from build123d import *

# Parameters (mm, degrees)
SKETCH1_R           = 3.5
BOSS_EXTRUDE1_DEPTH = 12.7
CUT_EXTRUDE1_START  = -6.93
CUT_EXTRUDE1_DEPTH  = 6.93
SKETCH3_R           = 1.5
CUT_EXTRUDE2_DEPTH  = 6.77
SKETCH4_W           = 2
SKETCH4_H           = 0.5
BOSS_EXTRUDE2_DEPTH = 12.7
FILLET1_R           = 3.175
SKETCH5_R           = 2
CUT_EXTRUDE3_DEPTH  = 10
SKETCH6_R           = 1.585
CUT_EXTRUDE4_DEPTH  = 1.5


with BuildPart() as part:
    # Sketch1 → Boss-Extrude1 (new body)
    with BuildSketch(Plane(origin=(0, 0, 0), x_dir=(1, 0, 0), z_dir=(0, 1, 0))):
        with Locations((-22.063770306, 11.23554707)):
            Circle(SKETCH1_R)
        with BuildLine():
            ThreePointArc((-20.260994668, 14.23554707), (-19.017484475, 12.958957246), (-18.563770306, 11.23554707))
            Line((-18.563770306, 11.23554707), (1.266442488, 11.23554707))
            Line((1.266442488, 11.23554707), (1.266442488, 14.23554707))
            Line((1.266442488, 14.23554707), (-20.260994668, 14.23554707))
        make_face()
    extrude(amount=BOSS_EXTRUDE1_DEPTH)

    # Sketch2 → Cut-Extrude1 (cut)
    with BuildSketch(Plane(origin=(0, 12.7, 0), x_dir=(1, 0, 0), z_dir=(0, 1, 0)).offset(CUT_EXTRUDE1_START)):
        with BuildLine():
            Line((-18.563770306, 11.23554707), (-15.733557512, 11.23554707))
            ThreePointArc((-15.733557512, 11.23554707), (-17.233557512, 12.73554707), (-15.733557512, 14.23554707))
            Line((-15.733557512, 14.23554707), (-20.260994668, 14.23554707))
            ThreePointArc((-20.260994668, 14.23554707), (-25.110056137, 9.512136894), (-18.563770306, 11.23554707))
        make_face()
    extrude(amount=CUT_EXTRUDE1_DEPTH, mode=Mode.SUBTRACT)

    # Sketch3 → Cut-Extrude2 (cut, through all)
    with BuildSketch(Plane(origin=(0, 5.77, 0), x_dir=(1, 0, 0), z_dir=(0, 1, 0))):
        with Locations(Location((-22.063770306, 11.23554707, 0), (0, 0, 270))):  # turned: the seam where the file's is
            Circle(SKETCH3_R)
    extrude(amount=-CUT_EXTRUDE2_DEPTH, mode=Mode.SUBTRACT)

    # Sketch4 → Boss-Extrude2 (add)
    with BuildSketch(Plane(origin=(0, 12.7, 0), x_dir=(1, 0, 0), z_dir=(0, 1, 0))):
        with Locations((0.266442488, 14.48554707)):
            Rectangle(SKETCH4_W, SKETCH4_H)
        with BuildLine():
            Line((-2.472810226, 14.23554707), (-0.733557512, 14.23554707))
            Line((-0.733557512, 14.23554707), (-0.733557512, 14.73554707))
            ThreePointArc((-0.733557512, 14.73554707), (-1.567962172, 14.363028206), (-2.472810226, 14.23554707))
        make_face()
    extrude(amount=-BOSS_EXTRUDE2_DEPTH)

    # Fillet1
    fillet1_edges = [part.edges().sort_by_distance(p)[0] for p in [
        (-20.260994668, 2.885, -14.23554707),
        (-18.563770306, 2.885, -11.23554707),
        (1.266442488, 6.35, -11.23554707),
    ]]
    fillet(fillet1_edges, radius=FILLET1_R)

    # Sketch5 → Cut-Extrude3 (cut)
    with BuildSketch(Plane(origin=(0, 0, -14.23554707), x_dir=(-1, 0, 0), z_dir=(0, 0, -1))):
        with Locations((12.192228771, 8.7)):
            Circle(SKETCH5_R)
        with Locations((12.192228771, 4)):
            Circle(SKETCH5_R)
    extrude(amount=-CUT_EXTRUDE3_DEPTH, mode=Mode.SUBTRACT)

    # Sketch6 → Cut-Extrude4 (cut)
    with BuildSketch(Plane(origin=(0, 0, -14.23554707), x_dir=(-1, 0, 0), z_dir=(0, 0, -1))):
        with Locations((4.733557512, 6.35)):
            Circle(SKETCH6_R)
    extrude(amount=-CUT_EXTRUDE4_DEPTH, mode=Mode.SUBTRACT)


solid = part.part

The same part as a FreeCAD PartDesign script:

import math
import FreeCAD as App
import Part
import Sketcher


def edges_at(feature, points):
    """Names of the edges that pass closest to the given points."""
    edges = feature.Shape.Edges
    near = lambda p: min(range(len(edges)), key=lambda i: edges[i].distToShape(Part.Vertex(*p))[0])
    return sorted({f"Edge{near(p) + 1}" for p in points})

doc = App.newDocument("Part")
body = doc.addObject("PartDesign::Body", "Body")

# Sketch on XZ plane
sketch1 = body.newObject("Sketcher::SketchObject", "Sketch")
sketch1.AttachmentSupport = (doc.getObject("XZ_Plane"), [""])
sketch1.MapMode = "FlatFace"
sketch1.addGeometry([
    Part.ArcOfCircle(Part.Circle(App.Vector(-22.06377, -11.235547, 0), App.Vector(0, 0, 1), 3.5), math.radians(0), math.radians(301.002719)),
    Part.LineSegment(App.Vector(-18.56377, -11.235547, 0), App.Vector(1.266442, -11.235547, 0)),
    Part.LineSegment(App.Vector(1.266442, -11.235547, 0), App.Vector(1.266442, -14.235547, 0)),
    Part.LineSegment(App.Vector(1.266442, -14.235547, 0), App.Vector(-20.260995, -14.235547, 0)),
], False)
sketch1.addConstraint([
    Sketcher.Constraint("Coincident", 0, 1, 1, 1),
    Sketcher.Constraint("Coincident", 1, 2, 2, 1),
    Sketcher.Constraint("Coincident", 2, 2, 3, 1),
    Sketcher.Constraint("Coincident", 3, 2, 0, 2),
    Sketcher.Constraint("Horizontal", 1),
    Sketcher.Constraint("Vertical", 2),
    Sketcher.Constraint("Horizontal", 3),
    Sketcher.Constraint("Radius", 0, 3.5),
    Sketcher.Constraint("DistanceY", 2, 2, 2, 1, 3.0),
    Sketcher.Constraint("DistanceY", 2, 2, 0, 3, 3.0),
    Sketcher.Constraint("DistanceX", 1, 1, 1, 2, 19.830213),
    Sketcher.Constraint("DistanceX", 0, 3, -1, 1, 22.06377),
    Sketcher.Constraint("DistanceY", 0, 3, -1, 1, 11.235547),
])
pad1 = body.newObject("PartDesign::Pad", "Pad")
pad1.Profile = sketch1
pad1.Length = 12.7
pad1.Reversed = True

# Sketch on XZ plane
sketch2 = body.newObject("Sketcher::SketchObject", "Sketch001")
sketch2.AttachmentSupport = (doc.getObject("XZ_Plane"), [""])
sketch2.MapMode = "FlatFace"
sketch2.AttachmentOffset = App.Placement(App.Vector(0, 0, -5.77), App.Rotation())
sketch2.addGeometry([
    Part.LineSegment(App.Vector(-18.56377, -11.235547, 0), App.Vector(-15.733558, -11.235547, 0)),
    Part.ArcOfCircle(Part.Circle(App.Vector(-15.733558, -12.735547, 0), App.Vector(0, 0, 1), 1.5), math.radians(90), math.radians(270)),
    Part.LineSegment(App.Vector(-15.733558, -14.235547, 0), App.Vector(-20.260995, -14.235547, 0)),
    Part.ArcOfCircle(Part.Circle(App.Vector(-22.06377, -11.235547, 0), App.Vector(0, 0, 1), 3.5), math.radians(0), math.radians(301.002719)),
], False)
sketch2.addConstraint([
    Sketcher.Constraint("Tangent", 0, 2, 1, 1),
    Sketcher.Constraint("Tangent", 1, 2, 2, 1),
    Sketcher.Constraint("Coincident", 2, 2, 3, 2),
    Sketcher.Constraint("Coincident", 3, 1, 0, 1),
    Sketcher.Constraint("Horizontal", 0),
    Sketcher.Constraint("Horizontal", 2),
    Sketcher.Constraint("Horizontal", 3, 3, 0, 2),
    Sketcher.Constraint("Radius", 1, 1.5),
    Sketcher.Constraint("Radius", 3, 3.5),
    Sketcher.Constraint("DistanceX", 0, 1, 0, 2, 2.830213),
    Sketcher.Constraint("DistanceX", 3, 3, -1, 1, 22.06377),
    Sketcher.Constraint("DistanceY", 1, 3, -1, 1, 12.735547),
])
pocket1 = body.newObject("PartDesign::Pocket", "Pocket")
pocket1.Profile = sketch2
pocket1.Length = 6.93

# Sketch on XZ plane
sketch3 = body.newObject("Sketcher::SketchObject", "Sketch002")
sketch3.AttachmentSupport = (doc.getObject("XZ_Plane"), [""])
sketch3.MapMode = "FlatFace"
sketch3.AttachmentOffset = App.Placement(App.Vector(0, 0, -5.77), App.Rotation())
sketch3.addGeometry(Part.Circle(App.Vector(-22.06377, -11.235547, 0), App.Vector(0, 0, 1), 1.5), False)
sketch3.addConstraint([
    Sketcher.Constraint("Diameter", 0, 3.0),
    Sketcher.Constraint("DistanceX", 0, 3, -1, 1, 22.06377),
    Sketcher.Constraint("DistanceY", 0, 3, -1, 1, 11.235547),
])
pocket2 = body.newObject("PartDesign::Pocket", "Pocket001")
pocket2.Profile = sketch3
pocket2.Type = "ThroughAll"
pocket2.Reversed = True

# Sketch on XZ plane
sketch4 = body.newObject("Sketcher::SketchObject", "Sketch003")
sketch4.AttachmentSupport = (doc.getObject("XZ_Plane"), [""])
sketch4.MapMode = "FlatFace"
sketch4.AttachmentOffset = App.Placement(App.Vector(0, 0, -12.7), App.Rotation())
sketch4.addGeometry([
    Part.LineSegment(App.Vector(1.266442, -14.235547, 0), App.Vector(1.266442, -14.735547, 0)),
    Part.LineSegment(App.Vector(1.266442, -14.735547, 0), App.Vector(-0.733558, -14.735547, 0)),
    Part.ArcOfCircle(Part.Circle(App.Vector(-2.47281, -17.510547, 0), App.Vector(0, 0, 1), 3.275), math.radians(57.922253), math.radians(90)),
    Part.LineSegment(App.Vector(-2.47281, -14.235547, 0), App.Vector(1.266442, -14.235547, 0)),
], False)
sketch4.addConstraint([
    Sketcher.Constraint("Coincident", 0, 2, 1, 1),
    Sketcher.Constraint("Coincident", 1, 2, 2, 1),
    Sketcher.Constraint("Tangent", 2, 2, 3, 1),
    Sketcher.Constraint("Coincident", 3, 2, 0, 1),
    Sketcher.Constraint("Vertical", 0),
    Sketcher.Constraint("Horizontal", 1),
    Sketcher.Constraint("Horizontal", 3),
    Sketcher.Constraint("DistanceX", 1, 2, 1, 1, 2.0),
    Sketcher.Constraint("DistanceY", 0, 2, 0, 1, 0.5),
    Sketcher.Constraint("Radius", 2, 3.275),
    Sketcher.Constraint("DistanceX", 2, 3, -1, 1, 2.47281),
    Sketcher.Constraint("DistanceY", 2, 3, -1, 1, 17.510547),
])
pad2 = body.newObject("PartDesign::Pad", "Pad001")
pad2.Profile = sketch4
pad2.Length = 12.7
doc.recompute()

fillet = body.newObject("PartDesign::Fillet", "Fillet")
fillet.Base = (pad2, edges_at(pad2, [(-20.261, 2.885, -14.236), (-18.564, 2.885, -11.236), (1.266, 6.35, -11.236)]))
fillet.Radius = 3.175

# Sketch on XY plane
sketch5 = body.newObject("Sketcher::SketchObject", "Sketch004")
sketch5.AttachmentSupport = (doc.getObject("XY_Plane"), [""])
sketch5.MapMode = "FlatFace"
sketch5.AttachmentOffset = App.Placement(App.Vector(0, 0, -14.235547), App.Rotation())
sketch5.addGeometry([
    Part.Circle(App.Vector(-12.192229, 8.7, 0), App.Vector(0, 0, 1), 2),
    Part.Circle(App.Vector(-12.192229, 4, 0), App.Vector(0, 0, 1), 2),
], False)
sketch5.addConstraint([
    Sketcher.Constraint("Equal", 0, 1),
    Sketcher.Constraint("Vertical", 0, 3, 1, 3),
    Sketcher.Constraint("Diameter", 0, 4.0),
    Sketcher.Constraint("DistanceY", -1, 1, 1, 3, 4.0),
    Sketcher.Constraint("DistanceY", -1, 1, 0, 3, 8.7),
    Sketcher.Constraint("DistanceX", 0, 3, -1, 1, 12.192229),
])
pocket3 = body.newObject("PartDesign::Pocket", "Pocket002")
pocket3.Profile = sketch5
pocket3.Length = 10
pocket3.Reversed = True

# Sketch on XY plane
sketch6 = body.newObject("Sketcher::SketchObject", "Sketch005")
sketch6.AttachmentSupport = (doc.getObject("XY_Plane"), [""])
sketch6.MapMode = "FlatFace"
sketch6.AttachmentOffset = App.Placement(App.Vector(0, 0, -14.235547), App.Rotation())
sketch6.addGeometry(Part.Circle(App.Vector(-4.733558, 6.35, 0), App.Vector(0, 0, 1), 1.585), False)
sketch6.addConstraint([
    Sketcher.Constraint("Diameter", 0, 3.17),
    Sketcher.Constraint("DistanceY", -1, 1, 0, 3, 6.35),
    Sketcher.Constraint("DistanceX", 0, 3, -1, 1, 4.733558),
])
pocket4 = body.newObject("PartDesign::Pocket", "Pocket003")
pocket4.Profile = sketch6
pocket4.Length = 1.5
pocket4.Reversed = True

doc.recompute()
